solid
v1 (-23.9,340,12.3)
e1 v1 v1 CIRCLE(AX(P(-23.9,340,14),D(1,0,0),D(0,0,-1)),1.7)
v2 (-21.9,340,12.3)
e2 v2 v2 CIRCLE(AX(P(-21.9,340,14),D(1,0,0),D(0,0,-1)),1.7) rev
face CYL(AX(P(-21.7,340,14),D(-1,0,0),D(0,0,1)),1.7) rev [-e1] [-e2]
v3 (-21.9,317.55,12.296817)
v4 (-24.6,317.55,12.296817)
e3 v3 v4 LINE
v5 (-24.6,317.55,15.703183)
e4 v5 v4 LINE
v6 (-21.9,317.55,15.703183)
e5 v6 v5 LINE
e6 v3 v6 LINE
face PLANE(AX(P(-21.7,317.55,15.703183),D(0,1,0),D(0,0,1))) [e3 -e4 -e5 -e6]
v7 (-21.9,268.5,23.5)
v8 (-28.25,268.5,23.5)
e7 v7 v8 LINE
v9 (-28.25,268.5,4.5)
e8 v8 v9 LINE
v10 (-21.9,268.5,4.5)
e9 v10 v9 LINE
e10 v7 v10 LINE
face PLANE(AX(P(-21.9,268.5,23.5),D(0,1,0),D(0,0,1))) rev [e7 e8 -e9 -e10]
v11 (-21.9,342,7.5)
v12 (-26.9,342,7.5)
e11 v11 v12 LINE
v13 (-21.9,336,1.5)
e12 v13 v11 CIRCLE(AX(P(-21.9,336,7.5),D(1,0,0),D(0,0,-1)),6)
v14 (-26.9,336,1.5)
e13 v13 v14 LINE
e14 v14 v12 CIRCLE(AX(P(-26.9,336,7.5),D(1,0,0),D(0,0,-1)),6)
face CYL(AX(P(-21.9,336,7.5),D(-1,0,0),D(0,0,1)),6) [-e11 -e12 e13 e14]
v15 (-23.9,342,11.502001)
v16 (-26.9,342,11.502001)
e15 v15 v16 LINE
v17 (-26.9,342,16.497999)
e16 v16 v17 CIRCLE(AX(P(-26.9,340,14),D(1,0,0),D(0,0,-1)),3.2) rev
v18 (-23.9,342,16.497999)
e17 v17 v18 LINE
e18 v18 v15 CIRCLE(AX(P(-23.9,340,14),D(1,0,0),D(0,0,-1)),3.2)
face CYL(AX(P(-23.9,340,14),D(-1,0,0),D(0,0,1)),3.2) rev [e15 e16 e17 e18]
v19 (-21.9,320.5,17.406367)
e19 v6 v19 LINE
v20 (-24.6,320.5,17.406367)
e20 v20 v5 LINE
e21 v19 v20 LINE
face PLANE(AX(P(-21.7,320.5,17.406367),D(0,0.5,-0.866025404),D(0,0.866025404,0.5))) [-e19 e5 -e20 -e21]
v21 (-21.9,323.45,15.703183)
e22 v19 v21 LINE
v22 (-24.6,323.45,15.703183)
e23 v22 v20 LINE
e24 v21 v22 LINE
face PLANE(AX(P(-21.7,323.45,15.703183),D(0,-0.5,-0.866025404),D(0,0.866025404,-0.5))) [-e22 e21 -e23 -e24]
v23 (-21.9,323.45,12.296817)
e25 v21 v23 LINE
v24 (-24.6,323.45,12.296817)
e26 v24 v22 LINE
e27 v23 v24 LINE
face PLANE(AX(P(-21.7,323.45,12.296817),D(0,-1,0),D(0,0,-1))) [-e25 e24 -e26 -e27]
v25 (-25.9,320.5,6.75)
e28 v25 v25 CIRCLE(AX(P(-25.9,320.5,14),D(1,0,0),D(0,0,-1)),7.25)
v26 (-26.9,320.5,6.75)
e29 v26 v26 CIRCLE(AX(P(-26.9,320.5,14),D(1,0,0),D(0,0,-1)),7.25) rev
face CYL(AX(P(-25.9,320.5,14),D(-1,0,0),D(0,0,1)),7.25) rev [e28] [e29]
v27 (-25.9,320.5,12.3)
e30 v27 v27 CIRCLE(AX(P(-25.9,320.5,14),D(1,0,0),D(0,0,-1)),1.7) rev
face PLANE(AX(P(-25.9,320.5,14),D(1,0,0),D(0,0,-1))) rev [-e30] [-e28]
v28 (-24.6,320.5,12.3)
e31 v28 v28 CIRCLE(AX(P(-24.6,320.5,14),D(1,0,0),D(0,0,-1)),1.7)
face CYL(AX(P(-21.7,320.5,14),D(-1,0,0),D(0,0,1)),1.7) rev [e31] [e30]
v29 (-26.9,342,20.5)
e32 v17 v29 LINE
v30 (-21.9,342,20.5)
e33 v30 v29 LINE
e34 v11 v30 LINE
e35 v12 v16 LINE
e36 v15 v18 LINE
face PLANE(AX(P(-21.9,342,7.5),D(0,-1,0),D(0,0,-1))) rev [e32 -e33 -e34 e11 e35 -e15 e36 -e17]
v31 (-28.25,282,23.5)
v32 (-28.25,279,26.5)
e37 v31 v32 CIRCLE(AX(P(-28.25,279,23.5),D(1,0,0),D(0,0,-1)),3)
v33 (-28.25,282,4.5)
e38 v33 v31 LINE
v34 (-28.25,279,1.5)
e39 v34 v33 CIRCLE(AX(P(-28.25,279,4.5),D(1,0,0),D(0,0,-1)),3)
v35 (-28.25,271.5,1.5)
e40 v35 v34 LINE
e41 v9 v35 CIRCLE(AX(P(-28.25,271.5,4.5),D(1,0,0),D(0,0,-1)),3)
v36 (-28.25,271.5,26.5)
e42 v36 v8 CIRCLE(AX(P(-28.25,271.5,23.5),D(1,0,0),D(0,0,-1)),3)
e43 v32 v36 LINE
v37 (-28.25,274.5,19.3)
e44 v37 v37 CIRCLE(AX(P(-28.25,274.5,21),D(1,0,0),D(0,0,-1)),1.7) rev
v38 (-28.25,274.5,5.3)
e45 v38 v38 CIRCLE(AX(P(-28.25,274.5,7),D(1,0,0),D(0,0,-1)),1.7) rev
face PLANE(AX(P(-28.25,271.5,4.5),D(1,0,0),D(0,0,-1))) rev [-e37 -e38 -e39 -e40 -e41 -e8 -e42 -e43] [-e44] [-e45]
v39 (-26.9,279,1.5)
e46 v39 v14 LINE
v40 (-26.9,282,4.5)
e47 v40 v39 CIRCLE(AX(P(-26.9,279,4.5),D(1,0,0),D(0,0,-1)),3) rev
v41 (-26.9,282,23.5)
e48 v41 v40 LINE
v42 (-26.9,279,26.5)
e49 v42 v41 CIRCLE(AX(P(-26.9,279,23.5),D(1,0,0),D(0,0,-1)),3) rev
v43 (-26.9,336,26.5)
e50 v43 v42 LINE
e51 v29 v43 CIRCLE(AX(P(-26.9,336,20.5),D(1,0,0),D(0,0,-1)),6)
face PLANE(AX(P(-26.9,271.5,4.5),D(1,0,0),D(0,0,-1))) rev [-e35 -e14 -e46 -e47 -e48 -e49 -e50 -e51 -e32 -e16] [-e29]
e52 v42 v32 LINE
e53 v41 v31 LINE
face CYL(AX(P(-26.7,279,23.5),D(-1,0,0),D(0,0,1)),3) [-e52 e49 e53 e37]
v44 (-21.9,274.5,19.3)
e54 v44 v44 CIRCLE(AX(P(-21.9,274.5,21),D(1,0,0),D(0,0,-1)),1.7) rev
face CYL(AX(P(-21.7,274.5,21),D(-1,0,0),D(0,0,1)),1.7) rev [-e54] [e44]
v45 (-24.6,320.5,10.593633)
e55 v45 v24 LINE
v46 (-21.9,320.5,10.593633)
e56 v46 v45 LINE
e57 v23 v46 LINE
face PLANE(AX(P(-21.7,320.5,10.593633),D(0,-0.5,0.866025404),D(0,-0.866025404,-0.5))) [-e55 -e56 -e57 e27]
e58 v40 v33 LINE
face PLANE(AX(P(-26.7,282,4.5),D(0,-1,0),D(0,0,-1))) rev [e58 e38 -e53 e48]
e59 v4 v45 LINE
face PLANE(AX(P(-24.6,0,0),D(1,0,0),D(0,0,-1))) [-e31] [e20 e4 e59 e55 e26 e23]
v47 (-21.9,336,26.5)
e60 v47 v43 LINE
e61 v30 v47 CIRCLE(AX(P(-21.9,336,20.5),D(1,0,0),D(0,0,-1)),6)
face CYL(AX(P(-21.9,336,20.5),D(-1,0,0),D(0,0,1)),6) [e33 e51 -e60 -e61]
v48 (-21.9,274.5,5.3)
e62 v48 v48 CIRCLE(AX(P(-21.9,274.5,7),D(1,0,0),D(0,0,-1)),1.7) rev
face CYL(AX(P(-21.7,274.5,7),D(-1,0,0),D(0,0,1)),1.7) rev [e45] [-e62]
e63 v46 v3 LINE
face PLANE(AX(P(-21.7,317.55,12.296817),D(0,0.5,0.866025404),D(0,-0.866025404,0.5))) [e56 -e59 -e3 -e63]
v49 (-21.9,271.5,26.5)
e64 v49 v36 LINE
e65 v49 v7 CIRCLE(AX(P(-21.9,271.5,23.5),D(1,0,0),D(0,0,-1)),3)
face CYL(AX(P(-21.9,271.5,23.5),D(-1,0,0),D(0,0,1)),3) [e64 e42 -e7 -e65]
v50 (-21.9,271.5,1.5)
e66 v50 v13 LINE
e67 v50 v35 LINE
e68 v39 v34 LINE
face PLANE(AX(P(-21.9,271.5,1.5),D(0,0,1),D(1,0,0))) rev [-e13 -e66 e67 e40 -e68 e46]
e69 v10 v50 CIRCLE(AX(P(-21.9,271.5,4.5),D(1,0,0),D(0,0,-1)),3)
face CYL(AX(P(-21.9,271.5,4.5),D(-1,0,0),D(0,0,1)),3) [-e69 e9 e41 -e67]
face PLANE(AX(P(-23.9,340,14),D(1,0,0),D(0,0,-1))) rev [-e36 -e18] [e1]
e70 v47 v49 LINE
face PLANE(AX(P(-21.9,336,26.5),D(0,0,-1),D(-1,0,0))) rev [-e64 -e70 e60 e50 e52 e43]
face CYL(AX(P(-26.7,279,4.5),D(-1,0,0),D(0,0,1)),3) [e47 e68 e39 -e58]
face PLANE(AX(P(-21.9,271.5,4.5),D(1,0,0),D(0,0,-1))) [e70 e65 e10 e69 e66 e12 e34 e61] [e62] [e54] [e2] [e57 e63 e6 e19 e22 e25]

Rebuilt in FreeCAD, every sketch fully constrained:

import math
import FreeCAD as App
import Part
import Sketcher
Q = App.Units.Quantity

doc = App.newDocument("Part")
body = doc.addObject("PartDesign::Body", "Body")

sketch1 = body.newObject("Sketcher::SketchObject", "Sketch")
sketch1.AttachmentSupport = (doc.getObject("YZ_Plane"), [""])
sketch1.MapMode = "FlatFace"
sketch1.AttachmentOffset = App.Placement(App.Vector(0, 0, -26.9), App.Rotation())
sketch1.addGeometry(Part.LineSegment(App.Vector(271.5, 1.5, 0), App.Vector(336, 1.5, 0)), False)
sketch1.addGeometry(Part.ArcOfCircle(Part.Circle(App.Vector(336, 7.5, 0), App.Vector(0, 0, 1), 6), math.radians(-90), math.radians(0)), False)
sketch1.addGeometry(Part.LineSegment(App.Vector(342, 7.5, 0), App.Vector(342, 20.5, 0)), False)
sketch1.addGeometry(Part.ArcOfCircle(Part.Circle(App.Vector(336, 20.5, 0), App.Vector(0, 0, 1), 6), math.radians(0), math.radians(90)), False)
sketch1.addGeometry(Part.LineSegment(App.Vector(336, 26.5, 0), App.Vector(271.5, 26.5, 0)), False)
sketch1.addGeometry(Part.ArcOfCircle(Part.Circle(App.Vector(271.5, 23.5, 0), App.Vector(0, 0, 1), 3), math.radians(90), math.radians(180)), False)
sketch1.addGeometry(Part.LineSegment(App.Vector(268.5, 23.5, 0), App.Vector(268.5, 4.5, 0)), False)
sketch1.addGeometry(Part.ArcOfCircle(Part.Circle(App.Vector(271.5, 4.5, 0), App.Vector(0, 0, 1), 3), math.radians(180), math.radians(270)), False)
sketch1.addConstraint(Sketcher.Constraint("Tangent", 0, 2, 1, 1))
sketch1.addConstraint(Sketcher.Constraint("Tangent", 1, 2, 2, 1))
sketch1.addConstraint(Sketcher.Constraint("Tangent", 2, 2, 3, 1))
sketch1.addConstraint(Sketcher.Constraint("Tangent", 3, 2, 4, 1))
sketch1.addConstraint(Sketcher.Constraint("Tangent", 4, 2, 5, 1))
sketch1.addConstraint(Sketcher.Constraint("Tangent", 5, 2, 6, 1))
sketch1.addConstraint(Sketcher.Constraint("Tangent", 6, 2, 7, 1))
sketch1.addConstraint(Sketcher.Constraint("Tangent", 7, 2, 0, 1))
sketch1.addConstraint(Sketcher.Constraint("Horizontal", 0))
sketch1.addConstraint(Sketcher.Constraint("Vertical", 2))
sketch1.addConstraint(Sketcher.Constraint("Horizontal", 4))
sketch1.addConstraint(Sketcher.Constraint("Vertical", 6))
sketch1.addConstraint(Sketcher.Constraint("Equal", 1, 3))
sketch1.addConstraint(Sketcher.Constraint("Equal", 5, 7))
sketch1.addConstraint(Sketcher.Constraint("Radius", 1, 6.0))
sketch1.addConstraint(Sketcher.Constraint("Radius", 5, 3.0))
sketch1.addConstraint(Sketcher.Constraint("DistanceY", 2, 1, 2, 2, 13.0))
sketch1.addConstraint(Sketcher.Constraint("DistanceX", 0, 1, 0, 2, 64.5))
sketch1.addConstraint(Sketcher.Constraint("DistanceX", -1, 1, 1, 3, 336.0))
sketch1.addConstraint(Sketcher.Constraint("DistanceY", -1, 1, 1, 3, 7.5))
pad1 = body.newObject("PartDesign::Pad", "Pad")
pad1.Profile = sketch1
pad1.Length = 5

sketch2 = body.newObject("Sketcher::SketchObject", "Sketch001")
sketch2.AttachmentSupport = (doc.getObject("YZ_Plane"), [""])
sketch2.MapMode = "FlatFace"
sketch2.AttachmentOffset = App.Placement(App.Vector(0, 0, -28.25), App.Rotation())
sketch2.addGeometry(Part.LineSegment(App.Vector(271.5, 1.5, 0), App.Vector(279, 1.5, 0)), False)
sketch2.addGeometry(Part.ArcOfCircle(Part.Circle(App.Vector(279, 4.5, 0), App.Vector(0, 0, 1), 3), math.radians(-90), math.radians(0)), False)
sketch2.addGeometry(Part.LineSegment(App.Vector(282, 4.5, 0), App.Vector(282, 23.5, 0)), False)
sketch2.addGeometry(Part.ArcOfCircle(Part.Circle(App.Vector(279, 23.5, 0), App.Vector(0, 0, 1), 3), math.radians(0), math.radians(90)), False)
sketch2.addGeometry(Part.LineSegment(App.Vector(279, 26.5, 0), App.Vector(271.5, 26.5, 0)), False)
sketch2.addGeometry(Part.ArcOfCircle(Part.Circle(App.Vector(271.5, 23.5, 0), App.Vector(0, 0, 1), 3), math.radians(90), math.radians(180)), False)
sketch2.addGeometry(Part.LineSegment(App.Vector(268.5, 23.5, 0), App.Vector(268.5, 4.5, 0)), False)
sketch2.addGeometry(Part.ArcOfCircle(Part.Circle(App.Vector(271.5, 4.5, 0), App.Vector(0, 0, 1), 3), math.radians(180), math.radians(270)), False)
sketch2.addConstraint(Sketcher.Constraint("Tangent", 0, 2, 1, 1))
sketch2.addConstraint(Sketcher.Constraint("Tangent", 1, 2, 2, 1))
sketch2.addConstraint(Sketcher.Constraint("Tangent", 2, 2, 3, 1))
sketch2.addConstraint(Sketcher.Constraint("Tangent", 3, 2, 4, 1))
sketch2.addConstraint(Sketcher.Constraint("Tangent", 4, 2, 5, 1))
sketch2.addConstraint(Sketcher.Constraint("Tangent", 5, 2, 6, 1))
sketch2.addConstraint(Sketcher.Constraint("Tangent", 6, 2, 7, 1))
sketch2.addConstraint(Sketcher.Constraint("Tangent", 7, 2, 0, 1))
sketch2.addConstraint(Sketcher.Constraint("Horizontal", 0))
sketch2.addConstraint(Sketcher.Constraint("Vertical", 2))
sketch2.addConstraint(Sketcher.Constraint("Horizontal", 4))
sketch2.addConstraint(Sketcher.Constraint("Vertical", 6))
sketch2.addConstraint(Sketcher.Constraint("Equal", 1, 3))
sketch2.addConstraint(Sketcher.Constraint("Equal", 3, 5))
sketch2.addConstraint(Sketcher.Constraint("Equal", 5, 7))
sketch2.addConstraint(Sketcher.Constraint("Radius", 1, 3.0))
sketch2.addConstraint(Sketcher.Constraint("DistanceY", 2, 1, 2, 2, 19.0))
sketch2.addConstraint(Sketcher.Constraint("DistanceX", 0, 1, 0, 2, 7.5))
sketch2.addConstraint(Sketcher.Constraint("DistanceX", -1, 1, 1, 3, 279.0))
sketch2.addConstraint(Sketcher.Constraint("DistanceY", -1, 1, 1, 3, 4.5))
pad2 = body.newObject("PartDesign::Pad", "Pad001")
pad2.Profile = sketch2
pad2.Length = 1.55

sketch3 = body.newObject("Sketcher::SketchObject", "Sketch002")
sketch3.AttachmentSupport = (doc.getObject("YZ_Plane"), [""])
sketch3.MapMode = "FlatFace"
sketch3.AttachmentOffset = App.Placement(App.Vector(0, 0, -27.1), App.Rotation())
sketch3.addGeometry(Part.Circle(App.Vector(320, 14, 0), App.Vector(0, 0, 1), 7), False)
sketch3.addConstraint(Sketcher.Constraint("Diameter", 0, 14.5))
sketch3.addConstraint(Sketcher.Constraint("DistanceY", -1, 1, 0, 3, 14.0))
sketch3.addConstraint(Sketcher.Constraint("DistanceX", -1, 1, 0, 3, 320.5))
pocket1 = body.newObject("PartDesign::Pocket", "Pocket")
pocket1.Profile = sketch3
pocket1.Length = 1.2
pocket1.Reversed = True

sketch4 = body.newObject("Sketcher::SketchObject", "Sketch003")
sketch4.AttachmentSupport = (doc.getObject("YZ_Plane"), [""])
sketch4.MapMode = "FlatFace"
sketch4.AttachmentOffset = App.Placement(App.Vector(0, 0, -28.55), App.Rotation())
sketch4.addGeometry(Part.Circle(App.Vector(320.5, 14, 0), App.Vector(0, 0, 1), 1.7), False)
sketch4.addGeometry(Part.Circle(App.Vector(274.5, 7, 0), App.Vector(0, 0, 1), 1.7), False)
sketch4.addGeometry(Part.Circle(App.Vector(274.5, 21, 0), App.Vector(0, 0, 1), 1.7), False)
sketch4.addGeometry(Part.Circle(App.Vector(340, 14, 0), App.Vector(0, 0, 1), 1.7), False)
sketch4.addConstraint(Sketcher.Constraint("Equal", 0, 1))
sketch4.addConstraint(Sketcher.Constraint("Equal", 1, 2))
sketch4.addConstraint(Sketcher.Constraint("Equal", 2, 3))
sketch4.addConstraint(Sketcher.Constraint("Horizontal", 0, 3, 3, 3))
sketch4.addConstraint(Sketcher.Constraint("Vertical", 1, 3, 2, 3))
sketch4.addConstraint(Sketcher.Constraint("Diameter", 0, 3.4))
sketch4.addConstraint(Sketcher.Constraint("DistanceY", -1, 1, 0, 3, 14.0))
sketch4.addConstraint(Sketcher.Constraint("DistanceY", -1, 1, 1, 3, 7.0))
sketch4.addConstraint(Sketcher.Constraint("DistanceY", -1, 1, 2, 3, 21.0))
sketch4.addConstraint(Sketcher.Constraint("DistanceX", -1, 1, 3, 3, 340.0))
sketch4.addConstraint(Sketcher.Constraint("DistanceX", 1, 3, 0, 3, 46.0))
sketch4.addConstraint(Sketcher.Constraint("DistanceX", -1, 1, 0, 3, 320.5))
pocket2 = body.newObject("PartDesign::Pocket", "Pocket001")
pocket2.Profile = sketch4
pocket2.Length = 6.85
pocket2.Reversed = True

sketch5 = body.newObject("Sketcher::SketchObject", "Sketch004")
sketch5.AttachmentSupport = (doc.getObject("YZ_Plane"), [""])
sketch5.MapMode = "FlatFace"
sketch5.AttachmentOffset = App.Placement(App.Vector(0, 0, -24.6), App.Rotation())
sketch5.addGeometry(Part.LineSegment(App.Vector(323.4, 15.7, 0), App.Vector(320.5, 17.4, 0)), False)
sketch5.addGeometry(Part.LineSegment(App.Vector(320.5, 17.4, 0), App.Vector(317.6, 15.7, 0)), False)
sketch5.addGeometry(Part.LineSegment(App.Vector(317.6, 15.7, 0), App.Vector(317.6, 12.3, 0)), False)
sketch5.addGeometry(Part.LineSegment(App.Vector(317.6, 12.3, 0), App.Vector(320.5, 10.6, 0)), False)
sketch5.addGeometry(Part.LineSegment(App.Vector(320.5, 10.6, 0), App.Vector(323.4, 12.3, 0)), False)
sketch5.addGeometry(Part.LineSegment(App.Vector(323.4, 12.3, 0), App.Vector(323.4, 15.7, 0)), False)
sketch5.addConstraint(Sketcher.Constraint("Coincident", 0, 2, 1, 1))
sketch5.addConstraint(Sketcher.Constraint("Coincident", 1, 2, 2, 1))
sketch5.addConstraint(Sketcher.Constraint("Coincident", 2, 2, 3, 1))
sketch5.addConstraint(Sketcher.Constraint("Coincident", 3, 2, 4, 1))
sketch5.addConstraint(Sketcher.Constraint("Coincident", 4, 2, 5, 1))
sketch5.addConstraint(Sketcher.Constraint("Coincident", 5, 2, 0, 1))
sketch5.addConstraint(Sketcher.Constraint("Vertical", 2))
sketch5.addConstraint(Sketcher.Constraint("Vertical", 5))
sketch5.addConstraint(Sketcher.Constraint("Parallel", 0, 3))
sketch5.addConstraint(Sketcher.Constraint("Parallel", 1, 4))
sketch5.addConstraint(Sketcher.Constraint("Horizontal", 2, 2, 4, 2))
sketch5.addConstraint(Sketcher.Constraint("Horizontal", 1, 2, 5, 2))
sketch5.addConstraint(Sketcher.Constraint("Vertical", 0, 2, 3, 2))
sketch5.addConstraint(Sketcher.Constraint("Angle", 0, Q("150 deg")))
sketch5.addConstraint(Sketcher.Constraint("DistanceX", -1, 1, 0, 2, 320.5))
sketch5.addConstraint(Sketcher.Constraint("DistanceX", 2, 2, 4, 2, 5.9))
sketch5.addConstraint(Sketcher.Constraint("DistanceY", 2, 2, 2, 1, 3.406367))
sketch5.addConstraint(Sketcher.Constraint("DistanceY", -1, 1, 0, 2, 17.406367))
pocket3 = body.newObject("PartDesign::Pocket", "Pocket002")
pocket3.Profile = sketch5
pocket3.Length = 2.9
pocket3.Reversed = True

sketch6 = body.newObject("Sketcher::SketchObject", "Sketch005")
sketch6.AttachmentSupport = (doc.getObject("YZ_Plane"), [""])
sketch6.MapMode = "FlatFace"
sketch6.AttachmentOffset = App.Placement(App.Vector(0, 0, -27.1), App.Rotation())
sketch6.addGeometry(Part.Circle(App.Vector(340, 14, 0), App.Vector(0, 0, 1), 3.2), False)
sketch6.addConstraint(Sketcher.Constraint("Diameter", 0, 6.4))
sketch6.addConstraint(Sketcher.Constraint("DistanceX", -1, 1, 0, 3, 340.0))
sketch6.addConstraint(Sketcher.Constraint("DistanceY", -1, 1, 0, 3, 14.0))
pocket4 = body.newObject("PartDesign::Pocket", "Pocket003")
pocket4.Profile = sketch6
pocket4.Length = 3.2
pocket4.Reversed = True

doc.recompute()
